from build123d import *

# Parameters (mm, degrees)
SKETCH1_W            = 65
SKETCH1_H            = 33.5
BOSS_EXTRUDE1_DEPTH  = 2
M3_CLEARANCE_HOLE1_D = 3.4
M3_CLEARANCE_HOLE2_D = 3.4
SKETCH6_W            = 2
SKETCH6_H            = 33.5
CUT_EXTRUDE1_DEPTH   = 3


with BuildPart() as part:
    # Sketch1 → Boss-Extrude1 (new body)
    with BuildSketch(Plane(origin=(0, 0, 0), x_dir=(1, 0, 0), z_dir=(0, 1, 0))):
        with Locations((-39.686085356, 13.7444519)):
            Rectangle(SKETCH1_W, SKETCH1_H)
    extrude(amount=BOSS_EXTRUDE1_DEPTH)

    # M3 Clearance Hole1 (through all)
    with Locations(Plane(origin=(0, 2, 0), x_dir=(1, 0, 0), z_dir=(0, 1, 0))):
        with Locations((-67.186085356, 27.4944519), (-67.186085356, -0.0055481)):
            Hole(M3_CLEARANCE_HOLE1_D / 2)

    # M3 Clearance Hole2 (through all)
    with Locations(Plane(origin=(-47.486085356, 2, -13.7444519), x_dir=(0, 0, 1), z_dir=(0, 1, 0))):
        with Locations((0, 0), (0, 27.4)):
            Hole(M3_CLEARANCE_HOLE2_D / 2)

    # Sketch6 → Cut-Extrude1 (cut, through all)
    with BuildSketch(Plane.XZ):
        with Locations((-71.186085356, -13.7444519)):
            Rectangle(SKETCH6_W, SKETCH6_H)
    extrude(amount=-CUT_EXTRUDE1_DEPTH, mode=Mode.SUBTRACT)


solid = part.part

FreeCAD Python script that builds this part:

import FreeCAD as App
import Part
import Sketcher
Q = App.Units.Quantity


def add_polygon(sketch, points):
    """Adds a closed chain of lines whose ends are joined by coincident constraints."""
    first, n = sketch.GeometryCount, len(points)
    for a, b in zip(points, points[1:] + points[:1]):
        sketch.addGeometry(Part.LineSegment(App.Vector(*a, 0), App.Vector(*b, 0)), False)
    for i in range(n):
        sketch.addConstraint(Sketcher.Constraint("Coincident", first + i, 2, first + (i + 1) % n, 1))

doc = App.newDocument("Part")
params = doc.addObject("Spreadsheet::Sheet", "Params")
for row, (alias, value) in enumerate([
    ("sketch1_width", "65 mm"),
    ("sketch1_height", "33.5 mm"),
    ("pad1_length", "2 mm"),
    ("sketch2_diameter", "3.4 mm"),
    ("hole_diameter", "3.4 mm"),
    ("sketch3_diameter", "3.4 mm"),
    ("hole2_diameter", "3.4 mm"),
    ("sketch4_width", "2 mm"),
    ("sketch4_height", "33.5 mm"),
], start=1):
    params.set(f"A{row}", alias)
    params.set(f"B{row}", "=" + value)
    params.setAlias(f"B{row}", alias)

body = doc.addObject("PartDesign::Body", "Body")

sketch1 = body.newObject("Sketcher::SketchObject", "Sketch")
sketch1.AttachmentSupport = (doc.getObject("XZ_Plane"), [""])
sketch1.MapMode = "FlatFace"
add_polygon(sketch1, [(-72, -30), (-72, 3), (-7, 3), (-7, -30)])
sketch1.addConstraint(Sketcher.Constraint("Vertical", 0))
sketch1.addConstraint(Sketcher.Constraint("Horizontal", 1))
sketch1.addConstraint(Sketcher.Constraint("Vertical", 2))
sketch1.addConstraint(Sketcher.Constraint("Horizontal", 3))
sketch1.addConstraint(Sketcher.Constraint("DistanceX", 1, 1, 1, 2, Q("65 mm")))
sketch1.addConstraint(Sketcher.Constraint("DistanceY", 0, 1, 0, 2, Q("33.5 mm")))
sketch1.addConstraint(Sketcher.Constraint("DistanceY", -1, 1, 0, 2, Q("3.005548 mm")))
sketch1.addConstraint(Sketcher.Constraint("DistanceX", 0, 2, -1, 1, Q("72.186085 mm")))
sketch1.setExpression("Constraints[8]", "Params.sketch1_width")
sketch1.setExpression("Constraints[9]", "Params.sketch1_height")
pad1 = body.newObject("PartDesign::Pad", "Pad")
pad1.Profile = sketch1
pad1.setExpression("Length", "Params.pad1_length")
pad1.Reversed = True

sketch2 = body.newObject("Sketcher::SketchObject", "Sketch001")
sketch2.AttachmentSupport = (doc.getObject("XZ_Plane"), [""])
sketch2.MapMode = "FlatFace"
sketch2.AttachmentOffset = App.Placement(App.Vector(0, 0, -2), App.Rotation())
sketch2.addGeometry(Part.Circle(App.Vector(-67.2, -27.5, 0), App.Vector(0, 0, 1), 1.7), False)
sketch2.addGeometry(Part.Circle(App.Vector(-67.2, 0, 0), App.Vector(0, 0, 1), 1.7), False)
sketch2.addConstraint(Sketcher.Constraint("Equal", 0, 1))
sketch2.addConstraint(Sketcher.Constraint("Vertical", 0, 3, 1, 3))
sketch2.addConstraint(Sketcher.Constraint("Diameter", 0, Q("3.4 mm")))
sketch2.addConstraint(Sketcher.Constraint("DistanceY", 0, 3, 1, 3, Q("27.5 mm")))
sketch2.addConstraint(Sketcher.Constraint("DistanceY", 0, 3, -1, 1, Q("27.494452 mm")))
sketch2.addConstraint(Sketcher.Constraint("DistanceX", 0, 3, -1, 1, Q("67.186085 mm")))
sketch2.setExpression("Constraints[2]", "Params.sketch2_diameter")
doc.recompute()
hole = body.newObject("PartDesign::Hole", "Hole")
hole.Profile = sketch2
hole.ThreadType = "None"
hole.setExpression("Diameter", "Params.hole_diameter")
hole.DepthType = "ThroughAll"
hole.Reversed = True

sketch3 = body.newObject("Sketcher::SketchObject", "Sketch002")
sketch3.AttachmentSupport = (doc.getObject("XZ_Plane"), [""])
sketch3.MapMode = "FlatFace"
sketch3.AttachmentOffset = App.Placement(App.Vector(0, 0, -2), App.Rotation())
sketch3.addGeometry(Part.Circle(App.Vector(-47.5, -13.7, 0), App.Vector(0, 0, 1), 1.7), False)
sketch3.addGeometry(Part.Circle(App.Vector(-20.1, -13.7, 0), App.Vector(0, 0, 1), 1.7), False)
sketch3.addConstraint(Sketcher.Constraint("Equal", 0, 1))
sketch3.addConstraint(Sketcher.Constraint("Horizontal", 0, 3, 1, 3))
sketch3.addConstraint(Sketcher.Constraint("Diameter", 0, Q("3.4 mm")))
sketch3.addConstraint(Sketcher.Constraint("DistanceX", 0, 3, 1, 3, Q("27.4 mm")))
sketch3.addConstraint(Sketcher.Constraint("DistanceY", 0, 3, -1, 1, Q("13.744452 mm")))
sketch3.addConstraint(Sketcher.Constraint("DistanceX", 0, 3, -1, 1, Q("47.486085 mm")))
sketch3.setExpression("Constraints[2]", "Params.sketch3_diameter")
doc.recompute()
hole2 = body.newObject("PartDesign::Hole", "Hole001")
hole2.Profile = sketch3
hole2.ThreadType = "None"
hole2.setExpression("Diameter", "Params.hole2_diameter")
hole2.DepthType = "ThroughAll"
hole2.Reversed = True

sketch4 = body.newObject("Sketcher::SketchObject", "Sketch003")
sketch4.AttachmentSupport = (doc.getObject("XZ_Plane"), [""])
sketch4.MapMode = "FlatFace"
add_polygon(sketch4, [(-72.2, 3), (-72.2, -30.5), (-70.2, -30.5), (-70.2, 3)])
sketch4.addConstraint(Sketcher.Constraint("Vertical", 0))
sketch4.addConstraint(Sketcher.Constraint("Horizontal", 1))
sketch4.addConstraint(Sketcher.Constraint("Vertical", 2))
sketch4.addConstraint(Sketcher.Constraint("Horizontal", 3))
sketch4.addConstraint(Sketcher.Constraint("DistanceX", 1, 1, 1, 2, Q("2 mm")))
sketch4.addConstraint(Sketcher.Constraint("DistanceY", 0, 2, 0, 1, Q("33.5 mm")))
sketch4.addConstraint(Sketcher.Constraint("DistanceY", 0, 2, -1, 1, Q("30.494452 mm")))
sketch4.addConstraint(Sketcher.Constraint("DistanceX", 0, 2, -1, 1, Q("72.186085 mm")))
sketch4.setExpression("Constraints[8]", "Params.sketch4_width")
sketch4.setExpression("Constraints[9]", "Params.sketch4_height")
pocket1 = body.newObject("PartDesign::Pocket", "Pocket")
pocket1.Profile = sketch4
pocket1.Type = "ThroughAll"

doc.recompute()
